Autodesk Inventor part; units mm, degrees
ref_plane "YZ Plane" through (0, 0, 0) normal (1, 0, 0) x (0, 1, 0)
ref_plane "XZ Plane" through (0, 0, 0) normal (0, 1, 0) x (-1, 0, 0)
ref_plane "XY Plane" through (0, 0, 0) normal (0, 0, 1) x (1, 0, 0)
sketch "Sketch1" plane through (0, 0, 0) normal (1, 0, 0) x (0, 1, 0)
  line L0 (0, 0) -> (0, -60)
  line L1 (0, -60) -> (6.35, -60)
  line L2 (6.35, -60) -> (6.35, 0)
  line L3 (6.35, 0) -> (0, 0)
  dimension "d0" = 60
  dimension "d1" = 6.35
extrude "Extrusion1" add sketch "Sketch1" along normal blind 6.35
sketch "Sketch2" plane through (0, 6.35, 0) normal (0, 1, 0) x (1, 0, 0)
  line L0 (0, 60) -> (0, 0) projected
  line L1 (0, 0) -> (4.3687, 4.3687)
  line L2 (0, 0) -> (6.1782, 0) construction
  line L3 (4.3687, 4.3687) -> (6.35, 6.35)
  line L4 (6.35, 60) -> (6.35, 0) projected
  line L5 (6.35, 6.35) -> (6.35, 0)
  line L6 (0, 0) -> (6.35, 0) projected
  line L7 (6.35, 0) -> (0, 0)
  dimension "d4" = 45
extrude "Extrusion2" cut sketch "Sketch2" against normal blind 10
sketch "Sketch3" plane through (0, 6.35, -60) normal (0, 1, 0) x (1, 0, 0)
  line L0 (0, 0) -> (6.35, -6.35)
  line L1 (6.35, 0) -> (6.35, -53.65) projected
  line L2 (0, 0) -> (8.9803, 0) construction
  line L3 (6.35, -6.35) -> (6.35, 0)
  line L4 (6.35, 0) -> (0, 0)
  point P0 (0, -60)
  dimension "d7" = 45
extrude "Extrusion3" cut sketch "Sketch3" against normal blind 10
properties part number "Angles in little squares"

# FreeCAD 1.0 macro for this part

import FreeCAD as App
import Part
import Sketcher

V = App.Vector
Q = App.Units.Quantity


def add_polygon(sketch, points):
    """Adds a closed chain of lines whose ends are joined by coincident constraints."""
    first, n = sketch.GeometryCount, len(points)
    for a, b in zip(points, points[1:] + points[:1]):
        sketch.addGeometry(Part.LineSegment(App.Vector(*a, 0), App.Vector(*b, 0)), False)
    for i in range(n):
        sketch.addConstraint(Sketcher.Constraint("Coincident", first + i, 2, first + (i + 1) % n, 1))

doc = App.newDocument("Part")
body = doc.addObject("PartDesign::Body", "Body")

# Sketch on YZ plane
sketch1 = doc.addObject("Sketcher::SketchObject", "Sketch")
body.addObject(sketch1)
sketch1.AttachmentSupport = (doc.YZ_Plane, [""])
sketch1.MapMode = "FlatFace"
add_polygon(sketch1, [(6.35, 0), (0, 0), (0, -60), (6.35, -60)])  # lines 0-3
sketch1.addConstraint([
    Sketcher.Constraint("Horizontal", 0),
    Sketcher.Constraint("Vertical", 1),
    Sketcher.Constraint("Horizontal", 2),
    Sketcher.Constraint("Vertical", 3),
    Sketcher.Constraint("Coincident", 0, 2, -1, 1),
    Sketcher.Constraint("DistanceX", 0, 2, 0, 1, Q("0.25 in")),
    Sketcher.Constraint("DistanceY", 1, 2, 1, 1, Q("2.3622 in")),
])
pad1 = doc.addObject("PartDesign::Pad", "Pad")
body.addObject(pad1)
pad1.Profile = sketch1
pad1.Length = Q("0.25 in")

# Sketch on XZ plane
sketch2 = doc.addObject("Sketcher::SketchObject", "Sketch001")
body.addObject(sketch2)
sketch2.AttachmentSupport = (doc.XZ_Plane, [""])
sketch2.MapMode = "FlatFace"
sketch2.AttachmentOffset = App.Placement(V(0, 0, -0.25 * 25.4), App.Rotation())
add_polygon(sketch2, [(6.35, -6.35), (0, 0), (6.35, 0)])  # lines 0-2
sketch2.addConstraint([
    Sketcher.Constraint("Horizontal", 1),
    Sketcher.Constraint("Vertical", 2),
    Sketcher.Constraint("Coincident", 0, 2, -1, 1),
    Sketcher.Constraint("Equal", 1, 2),
    Sketcher.Constraint("DistanceX", 1, 1, 1, 2, Q("0.25 in")),
])
pocket1 = doc.addObject("PartDesign::Pocket", "Pocket")
body.addObject(pocket1)
pocket1.Profile = sketch2
pocket1.Length = Q("0.3937008 in")
pocket1.Reversed = True

# Sketch on XZ plane
sketch3 = doc.addObject("Sketcher::SketchObject", "Sketch002")
body.addObject(sketch3)
sketch3.AttachmentSupport = (doc.XZ_Plane, [""])
sketch3.MapMode = "FlatFace"
sketch3.AttachmentOffset = App.Placement(V(0, 0, -0.25 * 25.4), App.Rotation())
add_polygon(sketch3, [(6.35, -60), (0, -60), (6.35, -53.65)])  # lines 0-2
sketch3.addConstraint([
    Sketcher.Constraint("Horizontal", 0),
    Sketcher.Constraint("Vertical", 2),
    Sketcher.Constraint("PointOnObject", 0, 2, -2),
    Sketcher.Constraint("Equal", 0, 2),
    Sketcher.Constraint("DistanceX", 0, 2, 0, 1, Q("0.25 in")),
    Sketcher.Constraint("DistanceY", 0, 2, -1, 1, Q("2.3622 in")),
])
pocket2 = doc.addObject("PartDesign::Pocket", "Pocket001")
body.addObject(pocket2)
pocket2.Profile = sketch3
pocket2.Length = Q("0.3937008 in")
pocket2.Reversed = True

doc.recompute()
